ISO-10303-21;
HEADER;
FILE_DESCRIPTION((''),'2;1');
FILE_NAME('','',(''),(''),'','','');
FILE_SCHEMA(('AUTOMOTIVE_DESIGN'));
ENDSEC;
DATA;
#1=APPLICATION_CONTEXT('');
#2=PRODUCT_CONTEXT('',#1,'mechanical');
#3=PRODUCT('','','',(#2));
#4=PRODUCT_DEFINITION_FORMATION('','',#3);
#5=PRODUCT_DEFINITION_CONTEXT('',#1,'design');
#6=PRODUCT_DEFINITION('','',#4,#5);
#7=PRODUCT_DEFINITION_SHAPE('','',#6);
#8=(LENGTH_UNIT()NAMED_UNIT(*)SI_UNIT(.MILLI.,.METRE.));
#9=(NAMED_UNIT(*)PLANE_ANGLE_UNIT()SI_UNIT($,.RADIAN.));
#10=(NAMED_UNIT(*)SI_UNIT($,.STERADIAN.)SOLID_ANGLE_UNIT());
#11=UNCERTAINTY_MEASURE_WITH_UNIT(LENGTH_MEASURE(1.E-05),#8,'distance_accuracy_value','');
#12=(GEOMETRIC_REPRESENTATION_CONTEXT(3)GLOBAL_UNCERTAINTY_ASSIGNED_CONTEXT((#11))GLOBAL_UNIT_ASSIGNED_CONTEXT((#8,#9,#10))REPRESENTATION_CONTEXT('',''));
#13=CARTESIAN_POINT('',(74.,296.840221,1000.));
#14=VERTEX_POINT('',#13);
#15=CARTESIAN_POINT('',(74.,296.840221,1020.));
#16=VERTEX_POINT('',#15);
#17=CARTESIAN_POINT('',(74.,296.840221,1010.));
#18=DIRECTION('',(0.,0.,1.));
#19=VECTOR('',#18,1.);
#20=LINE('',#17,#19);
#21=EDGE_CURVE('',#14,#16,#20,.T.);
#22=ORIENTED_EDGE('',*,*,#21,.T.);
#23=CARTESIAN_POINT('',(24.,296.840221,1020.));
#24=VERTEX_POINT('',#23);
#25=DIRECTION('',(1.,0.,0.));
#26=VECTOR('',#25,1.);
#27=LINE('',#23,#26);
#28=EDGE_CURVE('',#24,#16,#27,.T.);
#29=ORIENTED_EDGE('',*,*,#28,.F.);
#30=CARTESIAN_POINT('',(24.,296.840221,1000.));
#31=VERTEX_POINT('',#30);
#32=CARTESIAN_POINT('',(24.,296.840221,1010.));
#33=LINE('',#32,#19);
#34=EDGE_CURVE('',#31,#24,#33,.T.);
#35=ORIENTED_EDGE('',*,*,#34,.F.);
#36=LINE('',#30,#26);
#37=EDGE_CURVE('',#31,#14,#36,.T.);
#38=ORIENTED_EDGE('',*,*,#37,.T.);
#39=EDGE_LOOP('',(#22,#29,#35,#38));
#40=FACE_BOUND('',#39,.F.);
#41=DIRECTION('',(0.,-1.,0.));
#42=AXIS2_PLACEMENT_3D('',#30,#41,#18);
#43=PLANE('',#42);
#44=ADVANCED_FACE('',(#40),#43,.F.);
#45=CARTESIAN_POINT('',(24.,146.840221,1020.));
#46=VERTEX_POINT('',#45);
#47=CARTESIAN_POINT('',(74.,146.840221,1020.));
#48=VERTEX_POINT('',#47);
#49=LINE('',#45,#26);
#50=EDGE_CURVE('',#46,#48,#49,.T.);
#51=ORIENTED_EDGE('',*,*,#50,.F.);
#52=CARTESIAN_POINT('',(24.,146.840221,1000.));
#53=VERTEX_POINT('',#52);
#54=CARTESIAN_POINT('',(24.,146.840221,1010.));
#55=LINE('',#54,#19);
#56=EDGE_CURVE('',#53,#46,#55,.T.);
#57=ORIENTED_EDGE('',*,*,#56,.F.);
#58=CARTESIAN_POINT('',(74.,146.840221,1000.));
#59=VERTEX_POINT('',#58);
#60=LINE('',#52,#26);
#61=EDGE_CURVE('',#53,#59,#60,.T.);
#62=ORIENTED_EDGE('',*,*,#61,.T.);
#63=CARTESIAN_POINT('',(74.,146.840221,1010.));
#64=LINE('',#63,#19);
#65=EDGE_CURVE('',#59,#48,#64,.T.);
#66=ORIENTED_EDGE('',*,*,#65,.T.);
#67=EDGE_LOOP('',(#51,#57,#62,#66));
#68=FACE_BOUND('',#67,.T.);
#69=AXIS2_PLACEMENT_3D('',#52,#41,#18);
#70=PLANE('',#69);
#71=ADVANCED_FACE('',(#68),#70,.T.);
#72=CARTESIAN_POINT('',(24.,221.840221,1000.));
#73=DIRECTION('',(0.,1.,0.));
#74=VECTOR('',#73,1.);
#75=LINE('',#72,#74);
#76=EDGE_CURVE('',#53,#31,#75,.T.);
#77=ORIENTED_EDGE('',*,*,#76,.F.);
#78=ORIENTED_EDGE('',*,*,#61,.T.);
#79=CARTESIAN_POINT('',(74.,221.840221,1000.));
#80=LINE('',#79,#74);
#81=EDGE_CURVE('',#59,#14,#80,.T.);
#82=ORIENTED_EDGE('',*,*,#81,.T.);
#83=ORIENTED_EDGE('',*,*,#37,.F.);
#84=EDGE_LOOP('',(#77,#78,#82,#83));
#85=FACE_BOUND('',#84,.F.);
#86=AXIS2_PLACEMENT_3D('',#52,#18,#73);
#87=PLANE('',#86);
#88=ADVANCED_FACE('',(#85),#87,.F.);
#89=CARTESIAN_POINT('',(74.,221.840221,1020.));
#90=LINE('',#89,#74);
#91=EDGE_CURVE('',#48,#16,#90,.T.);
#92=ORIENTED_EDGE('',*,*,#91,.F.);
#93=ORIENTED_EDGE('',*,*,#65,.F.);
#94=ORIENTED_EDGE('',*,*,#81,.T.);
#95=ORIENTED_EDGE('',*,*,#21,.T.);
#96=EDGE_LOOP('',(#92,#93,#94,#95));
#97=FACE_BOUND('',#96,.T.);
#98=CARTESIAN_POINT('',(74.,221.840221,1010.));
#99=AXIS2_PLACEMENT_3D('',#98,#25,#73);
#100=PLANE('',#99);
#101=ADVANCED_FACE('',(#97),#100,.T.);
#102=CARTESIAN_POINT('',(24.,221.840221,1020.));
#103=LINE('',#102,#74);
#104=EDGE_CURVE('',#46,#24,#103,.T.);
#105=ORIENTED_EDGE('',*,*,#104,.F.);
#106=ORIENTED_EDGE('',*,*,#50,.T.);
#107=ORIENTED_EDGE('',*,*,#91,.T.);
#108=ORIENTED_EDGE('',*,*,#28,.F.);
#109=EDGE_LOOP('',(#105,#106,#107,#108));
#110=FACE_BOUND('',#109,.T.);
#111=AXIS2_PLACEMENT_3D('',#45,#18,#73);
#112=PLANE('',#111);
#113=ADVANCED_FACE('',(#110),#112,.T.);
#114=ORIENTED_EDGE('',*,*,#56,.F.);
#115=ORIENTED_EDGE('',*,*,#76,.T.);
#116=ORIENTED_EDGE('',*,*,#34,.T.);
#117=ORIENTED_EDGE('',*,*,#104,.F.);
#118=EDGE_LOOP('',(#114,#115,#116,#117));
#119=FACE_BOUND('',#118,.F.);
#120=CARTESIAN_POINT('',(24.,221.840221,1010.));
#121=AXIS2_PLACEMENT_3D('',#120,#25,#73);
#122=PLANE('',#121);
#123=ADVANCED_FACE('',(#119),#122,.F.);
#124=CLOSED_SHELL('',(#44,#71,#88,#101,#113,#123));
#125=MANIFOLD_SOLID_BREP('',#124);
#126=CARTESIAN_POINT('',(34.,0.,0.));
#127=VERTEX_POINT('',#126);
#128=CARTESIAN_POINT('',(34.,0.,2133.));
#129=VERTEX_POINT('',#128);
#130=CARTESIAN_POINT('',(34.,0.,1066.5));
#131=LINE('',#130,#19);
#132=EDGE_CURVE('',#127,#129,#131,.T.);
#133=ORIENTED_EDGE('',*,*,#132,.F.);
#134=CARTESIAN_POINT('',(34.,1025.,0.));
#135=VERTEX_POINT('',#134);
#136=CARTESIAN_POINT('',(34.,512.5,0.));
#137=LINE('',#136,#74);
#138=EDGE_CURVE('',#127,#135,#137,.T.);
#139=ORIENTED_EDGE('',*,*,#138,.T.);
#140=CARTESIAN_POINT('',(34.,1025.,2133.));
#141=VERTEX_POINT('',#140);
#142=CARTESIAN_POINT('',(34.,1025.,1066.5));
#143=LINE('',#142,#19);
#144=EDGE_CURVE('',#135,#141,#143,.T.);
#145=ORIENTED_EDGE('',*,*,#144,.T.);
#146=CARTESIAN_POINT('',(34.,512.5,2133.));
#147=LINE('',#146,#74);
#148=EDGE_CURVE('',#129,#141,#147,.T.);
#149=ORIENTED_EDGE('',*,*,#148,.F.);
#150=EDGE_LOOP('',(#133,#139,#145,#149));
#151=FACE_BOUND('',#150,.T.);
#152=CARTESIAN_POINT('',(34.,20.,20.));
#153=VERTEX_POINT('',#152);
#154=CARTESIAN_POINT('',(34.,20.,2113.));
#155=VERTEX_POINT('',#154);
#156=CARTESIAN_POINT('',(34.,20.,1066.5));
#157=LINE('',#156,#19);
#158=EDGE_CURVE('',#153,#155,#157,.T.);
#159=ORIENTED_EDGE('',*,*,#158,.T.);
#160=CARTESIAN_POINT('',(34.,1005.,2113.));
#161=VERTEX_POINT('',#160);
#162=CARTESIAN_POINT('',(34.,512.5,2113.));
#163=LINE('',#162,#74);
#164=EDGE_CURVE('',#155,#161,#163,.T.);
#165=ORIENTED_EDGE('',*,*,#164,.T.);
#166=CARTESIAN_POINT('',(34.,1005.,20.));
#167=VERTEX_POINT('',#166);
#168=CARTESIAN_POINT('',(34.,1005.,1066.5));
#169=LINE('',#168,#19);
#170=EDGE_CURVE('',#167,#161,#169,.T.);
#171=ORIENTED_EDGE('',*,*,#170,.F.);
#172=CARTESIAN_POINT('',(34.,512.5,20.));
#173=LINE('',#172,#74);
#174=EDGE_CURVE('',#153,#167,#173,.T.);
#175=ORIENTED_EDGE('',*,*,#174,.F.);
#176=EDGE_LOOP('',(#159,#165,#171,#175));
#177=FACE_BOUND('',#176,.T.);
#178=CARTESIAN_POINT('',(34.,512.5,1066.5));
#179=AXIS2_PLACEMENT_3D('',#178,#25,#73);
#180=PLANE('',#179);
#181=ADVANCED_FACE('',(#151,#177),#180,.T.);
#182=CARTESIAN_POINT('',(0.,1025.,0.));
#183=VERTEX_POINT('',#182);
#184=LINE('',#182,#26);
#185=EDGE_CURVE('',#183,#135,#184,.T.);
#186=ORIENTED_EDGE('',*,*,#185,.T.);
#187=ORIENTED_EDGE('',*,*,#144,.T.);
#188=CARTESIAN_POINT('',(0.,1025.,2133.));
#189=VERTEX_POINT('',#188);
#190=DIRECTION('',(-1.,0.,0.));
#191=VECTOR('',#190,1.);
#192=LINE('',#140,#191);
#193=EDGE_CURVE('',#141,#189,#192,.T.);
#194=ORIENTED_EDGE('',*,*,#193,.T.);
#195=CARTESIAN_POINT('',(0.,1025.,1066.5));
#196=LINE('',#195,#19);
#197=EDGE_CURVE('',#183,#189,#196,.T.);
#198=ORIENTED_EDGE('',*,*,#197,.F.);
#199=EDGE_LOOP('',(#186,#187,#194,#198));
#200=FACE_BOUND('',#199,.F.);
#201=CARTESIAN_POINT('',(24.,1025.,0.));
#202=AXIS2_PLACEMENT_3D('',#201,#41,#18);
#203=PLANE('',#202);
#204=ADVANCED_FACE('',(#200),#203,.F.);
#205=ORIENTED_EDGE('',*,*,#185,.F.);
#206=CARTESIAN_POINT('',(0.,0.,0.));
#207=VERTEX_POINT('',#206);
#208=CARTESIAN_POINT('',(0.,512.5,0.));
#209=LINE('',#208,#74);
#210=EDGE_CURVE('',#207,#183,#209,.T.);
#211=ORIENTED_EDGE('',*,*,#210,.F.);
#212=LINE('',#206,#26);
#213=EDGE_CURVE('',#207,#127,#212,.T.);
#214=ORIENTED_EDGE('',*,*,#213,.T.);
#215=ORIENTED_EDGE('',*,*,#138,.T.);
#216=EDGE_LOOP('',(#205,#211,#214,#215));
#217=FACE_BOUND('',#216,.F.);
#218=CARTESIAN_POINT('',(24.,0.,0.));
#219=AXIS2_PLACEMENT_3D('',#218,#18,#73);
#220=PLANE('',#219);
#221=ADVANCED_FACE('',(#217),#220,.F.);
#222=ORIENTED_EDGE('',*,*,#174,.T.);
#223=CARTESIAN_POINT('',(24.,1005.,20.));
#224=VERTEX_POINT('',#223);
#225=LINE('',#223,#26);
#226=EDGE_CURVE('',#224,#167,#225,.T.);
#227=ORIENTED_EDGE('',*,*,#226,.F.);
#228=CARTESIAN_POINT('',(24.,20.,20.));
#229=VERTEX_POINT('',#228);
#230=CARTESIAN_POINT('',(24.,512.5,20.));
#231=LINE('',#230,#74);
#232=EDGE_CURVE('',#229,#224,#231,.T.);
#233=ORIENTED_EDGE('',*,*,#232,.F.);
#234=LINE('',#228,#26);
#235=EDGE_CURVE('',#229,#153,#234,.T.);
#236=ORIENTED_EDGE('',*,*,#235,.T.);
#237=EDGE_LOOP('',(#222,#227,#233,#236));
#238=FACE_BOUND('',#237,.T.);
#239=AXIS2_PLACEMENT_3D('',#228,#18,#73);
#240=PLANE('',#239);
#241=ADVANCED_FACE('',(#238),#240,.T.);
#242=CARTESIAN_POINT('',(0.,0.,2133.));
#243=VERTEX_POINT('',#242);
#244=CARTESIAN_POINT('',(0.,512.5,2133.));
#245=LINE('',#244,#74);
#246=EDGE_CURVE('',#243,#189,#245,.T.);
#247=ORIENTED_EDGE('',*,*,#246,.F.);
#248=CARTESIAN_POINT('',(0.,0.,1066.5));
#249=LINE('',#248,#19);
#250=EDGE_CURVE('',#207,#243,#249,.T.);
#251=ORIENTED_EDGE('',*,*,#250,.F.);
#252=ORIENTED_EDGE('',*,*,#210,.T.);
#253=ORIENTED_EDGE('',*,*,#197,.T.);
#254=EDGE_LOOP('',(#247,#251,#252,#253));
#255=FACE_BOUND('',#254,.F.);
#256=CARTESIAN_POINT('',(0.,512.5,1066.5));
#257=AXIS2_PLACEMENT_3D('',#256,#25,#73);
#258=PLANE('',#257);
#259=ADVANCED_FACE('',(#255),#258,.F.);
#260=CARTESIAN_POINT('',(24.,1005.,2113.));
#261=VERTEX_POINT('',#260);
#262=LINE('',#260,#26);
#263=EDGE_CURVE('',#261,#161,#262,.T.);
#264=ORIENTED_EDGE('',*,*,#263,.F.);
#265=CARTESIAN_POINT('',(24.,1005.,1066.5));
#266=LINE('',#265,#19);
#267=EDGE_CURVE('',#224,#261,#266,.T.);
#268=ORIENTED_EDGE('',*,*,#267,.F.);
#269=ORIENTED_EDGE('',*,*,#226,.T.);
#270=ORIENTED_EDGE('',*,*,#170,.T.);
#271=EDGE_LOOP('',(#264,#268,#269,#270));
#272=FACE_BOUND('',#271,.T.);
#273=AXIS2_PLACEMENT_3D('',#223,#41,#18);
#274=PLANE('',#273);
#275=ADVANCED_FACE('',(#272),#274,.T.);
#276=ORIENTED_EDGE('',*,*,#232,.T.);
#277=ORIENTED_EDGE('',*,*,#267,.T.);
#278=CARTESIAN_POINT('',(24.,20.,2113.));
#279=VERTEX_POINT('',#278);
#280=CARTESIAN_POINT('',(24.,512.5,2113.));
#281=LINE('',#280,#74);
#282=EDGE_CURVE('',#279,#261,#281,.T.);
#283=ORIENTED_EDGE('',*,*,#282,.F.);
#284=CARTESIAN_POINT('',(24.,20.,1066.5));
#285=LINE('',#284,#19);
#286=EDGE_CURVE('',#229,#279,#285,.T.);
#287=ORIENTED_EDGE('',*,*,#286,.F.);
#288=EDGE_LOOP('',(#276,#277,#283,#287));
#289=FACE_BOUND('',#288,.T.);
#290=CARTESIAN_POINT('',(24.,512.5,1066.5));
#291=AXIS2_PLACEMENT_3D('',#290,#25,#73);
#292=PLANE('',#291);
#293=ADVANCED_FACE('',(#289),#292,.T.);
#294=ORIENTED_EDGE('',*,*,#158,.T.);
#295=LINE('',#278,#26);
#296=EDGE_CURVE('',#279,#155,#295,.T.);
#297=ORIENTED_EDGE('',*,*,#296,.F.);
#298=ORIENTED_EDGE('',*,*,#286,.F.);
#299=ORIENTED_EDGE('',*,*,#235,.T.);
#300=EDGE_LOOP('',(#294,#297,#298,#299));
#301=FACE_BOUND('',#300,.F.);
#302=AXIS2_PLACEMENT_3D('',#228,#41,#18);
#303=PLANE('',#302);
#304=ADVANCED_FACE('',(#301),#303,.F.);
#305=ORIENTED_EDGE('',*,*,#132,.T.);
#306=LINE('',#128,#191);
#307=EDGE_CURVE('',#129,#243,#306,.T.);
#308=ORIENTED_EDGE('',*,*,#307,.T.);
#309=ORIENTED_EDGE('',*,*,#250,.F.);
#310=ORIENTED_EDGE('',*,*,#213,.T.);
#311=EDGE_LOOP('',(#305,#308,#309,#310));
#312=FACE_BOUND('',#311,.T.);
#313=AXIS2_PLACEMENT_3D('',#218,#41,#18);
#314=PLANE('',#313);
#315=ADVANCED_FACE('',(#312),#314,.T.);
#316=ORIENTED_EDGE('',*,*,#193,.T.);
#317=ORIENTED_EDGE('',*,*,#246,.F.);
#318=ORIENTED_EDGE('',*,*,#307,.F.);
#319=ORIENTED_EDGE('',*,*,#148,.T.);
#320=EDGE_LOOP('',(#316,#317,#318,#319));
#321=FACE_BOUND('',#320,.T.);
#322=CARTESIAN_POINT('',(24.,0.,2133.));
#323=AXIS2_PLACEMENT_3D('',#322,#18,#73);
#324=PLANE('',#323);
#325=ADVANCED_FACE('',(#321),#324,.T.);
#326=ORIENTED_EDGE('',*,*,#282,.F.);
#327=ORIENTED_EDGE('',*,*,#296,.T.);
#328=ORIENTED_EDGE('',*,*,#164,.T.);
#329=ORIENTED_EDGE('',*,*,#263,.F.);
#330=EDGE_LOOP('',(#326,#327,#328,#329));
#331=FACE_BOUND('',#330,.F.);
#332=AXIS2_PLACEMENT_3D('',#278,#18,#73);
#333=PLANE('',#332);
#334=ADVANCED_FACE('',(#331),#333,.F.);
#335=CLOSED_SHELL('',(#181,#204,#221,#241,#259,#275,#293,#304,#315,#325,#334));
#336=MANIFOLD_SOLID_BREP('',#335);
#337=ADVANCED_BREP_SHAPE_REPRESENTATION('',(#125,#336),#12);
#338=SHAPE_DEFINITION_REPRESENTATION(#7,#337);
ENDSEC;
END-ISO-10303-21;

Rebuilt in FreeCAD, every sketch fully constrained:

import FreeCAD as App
import Part
import Sketcher
from FreeCAD import Vector


def add_polygon(sketch, points):
    """Adds a closed chain of lines whose ends are joined by coincident constraints."""
    first, n = sketch.GeometryCount, len(points)
    for a, b in zip(points, points[1:] + points[:1]):
        sketch.addGeometry(Part.LineSegment(App.Vector(*a, 0), App.Vector(*b, 0)), False)
    for i in range(n):
        sketch.addConstraint(Sketcher.Constraint("Coincident", first + i, 2, first + (i + 1) % n, 1))

doc = App.newDocument("Part")
params = doc.addObject("Spreadsheet::Sheet", "Params")
for row, (alias, value) in enumerate([
    ("sketch1_width", "1025 mm"),
    ("sketch1_height", "2133 mm"),
    ("pad1_length", "24 mm"),
    ("sketch2_width", "1025 mm"),
    ("sketch2_width2", "985 mm"),
    ("sketch2_height", "2133 mm"),
    ("sketch2_height2", "2093 mm"),
    ("pad2_length", "10 mm"),
    ("sketch3_width", "150 mm"),
    ("sketch3_height", "20 mm"),
    ("pad3_length", "50 mm"),
], start=1):
    params.set(f"A{row}", alias)
    params.set(f"B{row}", "=" + value)
    params.setAlias(f"B{row}", alias)

body = doc.addObject("PartDesign::Body", "Body")

# Sketch on YZ plane
sketch1 = body.newObject("Sketcher::SketchObject", "Sketch")
sketch1.AttachmentSupport = (doc.getObject("YZ_Plane"), [""])
sketch1.MapMode = "FlatFace"
add_polygon(sketch1, [(0, 2133), (0, 0), (1025, 0), (1025, 2133)])  # lines 0-3
sketch1.addConstraint([
    Sketcher.Constraint("Vertical", 0),
    Sketcher.Constraint("Horizontal", 1),
    Sketcher.Constraint("Vertical", 2),
    Sketcher.Constraint("Horizontal", 3),
    Sketcher.Constraint("Coincident", 0, 2, -1, 1),
    Sketcher.Constraint("DistanceX", 1, 1, 1, 2, 1025.0),
    Sketcher.Constraint("DistanceY", 0, 2, 0, 1, 2133.0),
])
sketch1.setExpression("Constraints[9]", "Params.sketch1_width")
sketch1.setExpression("Constraints[10]", "Params.sketch1_height")
pad1 = body.newObject("PartDesign::Pad", "Pad")
pad1.Profile = sketch1
pad1.setExpression("Length", "Params.pad1_length")

# Sketch on YZ plane
sketch2 = body.newObject("Sketcher::SketchObject", "Sketch001")
sketch2.AttachmentSupport = (doc.getObject("YZ_Plane"), [""])
sketch2.MapMode = "FlatFace"
sketch2.AttachmentOffset = App.Placement(Vector(0, 0, 24), App.Rotation())
add_polygon(sketch2, [(0, 2133), (0, 0), (1025, 0), (1025, 2133)])  # lines 0-3
add_polygon(sketch2, [(1005, 20), (20, 20), (20, 2113), (1005, 2113)])  # lines 4-7
sketch2.addConstraint([
    Sketcher.Constraint("Vertical", 0),
    Sketcher.Constraint("Horizontal", 1),
    Sketcher.Constraint("Vertical", 2),
    Sketcher.Constraint("Horizontal", 3),
    Sketcher.Constraint("Horizontal", 4),
    Sketcher.Constraint("Vertical", 5),
    Sketcher.Constraint("Horizontal", 6),
    Sketcher.Constraint("Vertical", 7),
    Sketcher.Constraint("Coincident", 0, 2, -1, 1),
    Sketcher.Constraint("DistanceX", 1, 1, 1, 2, 1025.0),
    Sketcher.Constraint("DistanceX", 4, 2, 4, 1, 985.0),
    Sketcher.Constraint("DistanceY", 0, 2, 0, 1, 2133.0),
    Sketcher.Constraint("DistanceY", 5, 1, 5, 2, 2093.0),
    Sketcher.Constraint("DistanceX", -1, 1, 4, 2, 20.0),
    Sketcher.Constraint("DistanceY", -1, 1, 4, 2, 20.0),
])
sketch2.setExpression("Constraints[17]", "Params.sketch2_width")
sketch2.setExpression("Constraints[18]", "Params.sketch2_width2")
sketch2.setExpression("Constraints[19]", "Params.sketch2_height")
sketch2.setExpression("Constraints[20]", "Params.sketch2_height2")
pad2 = body.newObject("PartDesign::Pad", "Pad001")
pad2.Profile = sketch2
pad2.setExpression("Length", "Params.pad2_length")
body2 = doc.addObject("PartDesign::Body", "Body001")

# Sketch on YZ plane
sketch3 = body2.newObject("Sketcher::SketchObject", "Sketch002")
sketch3.AttachmentSupport = (doc.getObject("YZ_Plane001"), [""])
sketch3.MapMode = "FlatFace"
sketch3.AttachmentOffset = App.Placement(Vector(0, 0, 24), App.Rotation())
add_polygon(sketch3, [(147, 1020), (147, 1000), (297, 1000), (297, 1020)])  # lines 0-3
sketch3.addConstraint([
    Sketcher.Constraint("Vertical", 0),
    Sketcher.Constraint("Horizontal", 1),
    Sketcher.Constraint("Vertical", 2),
    Sketcher.Constraint("Horizontal", 3),
    Sketcher.Constraint("DistanceX", 1, 1, 1, 2, 150.0),
    Sketcher.Constraint("DistanceY", 0, 2, 0, 1, 20.0),
    Sketcher.Constraint("DistanceY", -1, 1, 0, 2, 1000.0),
    Sketcher.Constraint("DistanceX", -1, 1, 0, 2, 146.840221),
])
sketch3.setExpression("Constraints[8]", "Params.sketch3_width")
sketch3.setExpression("Constraints[9]", "Params.sketch3_height")
pad3 = body2.newObject("PartDesign::Pad", "Pad002")
pad3.Profile = sketch3
pad3.setExpression("Length", "Params.pad3_length")

doc.recompute()
